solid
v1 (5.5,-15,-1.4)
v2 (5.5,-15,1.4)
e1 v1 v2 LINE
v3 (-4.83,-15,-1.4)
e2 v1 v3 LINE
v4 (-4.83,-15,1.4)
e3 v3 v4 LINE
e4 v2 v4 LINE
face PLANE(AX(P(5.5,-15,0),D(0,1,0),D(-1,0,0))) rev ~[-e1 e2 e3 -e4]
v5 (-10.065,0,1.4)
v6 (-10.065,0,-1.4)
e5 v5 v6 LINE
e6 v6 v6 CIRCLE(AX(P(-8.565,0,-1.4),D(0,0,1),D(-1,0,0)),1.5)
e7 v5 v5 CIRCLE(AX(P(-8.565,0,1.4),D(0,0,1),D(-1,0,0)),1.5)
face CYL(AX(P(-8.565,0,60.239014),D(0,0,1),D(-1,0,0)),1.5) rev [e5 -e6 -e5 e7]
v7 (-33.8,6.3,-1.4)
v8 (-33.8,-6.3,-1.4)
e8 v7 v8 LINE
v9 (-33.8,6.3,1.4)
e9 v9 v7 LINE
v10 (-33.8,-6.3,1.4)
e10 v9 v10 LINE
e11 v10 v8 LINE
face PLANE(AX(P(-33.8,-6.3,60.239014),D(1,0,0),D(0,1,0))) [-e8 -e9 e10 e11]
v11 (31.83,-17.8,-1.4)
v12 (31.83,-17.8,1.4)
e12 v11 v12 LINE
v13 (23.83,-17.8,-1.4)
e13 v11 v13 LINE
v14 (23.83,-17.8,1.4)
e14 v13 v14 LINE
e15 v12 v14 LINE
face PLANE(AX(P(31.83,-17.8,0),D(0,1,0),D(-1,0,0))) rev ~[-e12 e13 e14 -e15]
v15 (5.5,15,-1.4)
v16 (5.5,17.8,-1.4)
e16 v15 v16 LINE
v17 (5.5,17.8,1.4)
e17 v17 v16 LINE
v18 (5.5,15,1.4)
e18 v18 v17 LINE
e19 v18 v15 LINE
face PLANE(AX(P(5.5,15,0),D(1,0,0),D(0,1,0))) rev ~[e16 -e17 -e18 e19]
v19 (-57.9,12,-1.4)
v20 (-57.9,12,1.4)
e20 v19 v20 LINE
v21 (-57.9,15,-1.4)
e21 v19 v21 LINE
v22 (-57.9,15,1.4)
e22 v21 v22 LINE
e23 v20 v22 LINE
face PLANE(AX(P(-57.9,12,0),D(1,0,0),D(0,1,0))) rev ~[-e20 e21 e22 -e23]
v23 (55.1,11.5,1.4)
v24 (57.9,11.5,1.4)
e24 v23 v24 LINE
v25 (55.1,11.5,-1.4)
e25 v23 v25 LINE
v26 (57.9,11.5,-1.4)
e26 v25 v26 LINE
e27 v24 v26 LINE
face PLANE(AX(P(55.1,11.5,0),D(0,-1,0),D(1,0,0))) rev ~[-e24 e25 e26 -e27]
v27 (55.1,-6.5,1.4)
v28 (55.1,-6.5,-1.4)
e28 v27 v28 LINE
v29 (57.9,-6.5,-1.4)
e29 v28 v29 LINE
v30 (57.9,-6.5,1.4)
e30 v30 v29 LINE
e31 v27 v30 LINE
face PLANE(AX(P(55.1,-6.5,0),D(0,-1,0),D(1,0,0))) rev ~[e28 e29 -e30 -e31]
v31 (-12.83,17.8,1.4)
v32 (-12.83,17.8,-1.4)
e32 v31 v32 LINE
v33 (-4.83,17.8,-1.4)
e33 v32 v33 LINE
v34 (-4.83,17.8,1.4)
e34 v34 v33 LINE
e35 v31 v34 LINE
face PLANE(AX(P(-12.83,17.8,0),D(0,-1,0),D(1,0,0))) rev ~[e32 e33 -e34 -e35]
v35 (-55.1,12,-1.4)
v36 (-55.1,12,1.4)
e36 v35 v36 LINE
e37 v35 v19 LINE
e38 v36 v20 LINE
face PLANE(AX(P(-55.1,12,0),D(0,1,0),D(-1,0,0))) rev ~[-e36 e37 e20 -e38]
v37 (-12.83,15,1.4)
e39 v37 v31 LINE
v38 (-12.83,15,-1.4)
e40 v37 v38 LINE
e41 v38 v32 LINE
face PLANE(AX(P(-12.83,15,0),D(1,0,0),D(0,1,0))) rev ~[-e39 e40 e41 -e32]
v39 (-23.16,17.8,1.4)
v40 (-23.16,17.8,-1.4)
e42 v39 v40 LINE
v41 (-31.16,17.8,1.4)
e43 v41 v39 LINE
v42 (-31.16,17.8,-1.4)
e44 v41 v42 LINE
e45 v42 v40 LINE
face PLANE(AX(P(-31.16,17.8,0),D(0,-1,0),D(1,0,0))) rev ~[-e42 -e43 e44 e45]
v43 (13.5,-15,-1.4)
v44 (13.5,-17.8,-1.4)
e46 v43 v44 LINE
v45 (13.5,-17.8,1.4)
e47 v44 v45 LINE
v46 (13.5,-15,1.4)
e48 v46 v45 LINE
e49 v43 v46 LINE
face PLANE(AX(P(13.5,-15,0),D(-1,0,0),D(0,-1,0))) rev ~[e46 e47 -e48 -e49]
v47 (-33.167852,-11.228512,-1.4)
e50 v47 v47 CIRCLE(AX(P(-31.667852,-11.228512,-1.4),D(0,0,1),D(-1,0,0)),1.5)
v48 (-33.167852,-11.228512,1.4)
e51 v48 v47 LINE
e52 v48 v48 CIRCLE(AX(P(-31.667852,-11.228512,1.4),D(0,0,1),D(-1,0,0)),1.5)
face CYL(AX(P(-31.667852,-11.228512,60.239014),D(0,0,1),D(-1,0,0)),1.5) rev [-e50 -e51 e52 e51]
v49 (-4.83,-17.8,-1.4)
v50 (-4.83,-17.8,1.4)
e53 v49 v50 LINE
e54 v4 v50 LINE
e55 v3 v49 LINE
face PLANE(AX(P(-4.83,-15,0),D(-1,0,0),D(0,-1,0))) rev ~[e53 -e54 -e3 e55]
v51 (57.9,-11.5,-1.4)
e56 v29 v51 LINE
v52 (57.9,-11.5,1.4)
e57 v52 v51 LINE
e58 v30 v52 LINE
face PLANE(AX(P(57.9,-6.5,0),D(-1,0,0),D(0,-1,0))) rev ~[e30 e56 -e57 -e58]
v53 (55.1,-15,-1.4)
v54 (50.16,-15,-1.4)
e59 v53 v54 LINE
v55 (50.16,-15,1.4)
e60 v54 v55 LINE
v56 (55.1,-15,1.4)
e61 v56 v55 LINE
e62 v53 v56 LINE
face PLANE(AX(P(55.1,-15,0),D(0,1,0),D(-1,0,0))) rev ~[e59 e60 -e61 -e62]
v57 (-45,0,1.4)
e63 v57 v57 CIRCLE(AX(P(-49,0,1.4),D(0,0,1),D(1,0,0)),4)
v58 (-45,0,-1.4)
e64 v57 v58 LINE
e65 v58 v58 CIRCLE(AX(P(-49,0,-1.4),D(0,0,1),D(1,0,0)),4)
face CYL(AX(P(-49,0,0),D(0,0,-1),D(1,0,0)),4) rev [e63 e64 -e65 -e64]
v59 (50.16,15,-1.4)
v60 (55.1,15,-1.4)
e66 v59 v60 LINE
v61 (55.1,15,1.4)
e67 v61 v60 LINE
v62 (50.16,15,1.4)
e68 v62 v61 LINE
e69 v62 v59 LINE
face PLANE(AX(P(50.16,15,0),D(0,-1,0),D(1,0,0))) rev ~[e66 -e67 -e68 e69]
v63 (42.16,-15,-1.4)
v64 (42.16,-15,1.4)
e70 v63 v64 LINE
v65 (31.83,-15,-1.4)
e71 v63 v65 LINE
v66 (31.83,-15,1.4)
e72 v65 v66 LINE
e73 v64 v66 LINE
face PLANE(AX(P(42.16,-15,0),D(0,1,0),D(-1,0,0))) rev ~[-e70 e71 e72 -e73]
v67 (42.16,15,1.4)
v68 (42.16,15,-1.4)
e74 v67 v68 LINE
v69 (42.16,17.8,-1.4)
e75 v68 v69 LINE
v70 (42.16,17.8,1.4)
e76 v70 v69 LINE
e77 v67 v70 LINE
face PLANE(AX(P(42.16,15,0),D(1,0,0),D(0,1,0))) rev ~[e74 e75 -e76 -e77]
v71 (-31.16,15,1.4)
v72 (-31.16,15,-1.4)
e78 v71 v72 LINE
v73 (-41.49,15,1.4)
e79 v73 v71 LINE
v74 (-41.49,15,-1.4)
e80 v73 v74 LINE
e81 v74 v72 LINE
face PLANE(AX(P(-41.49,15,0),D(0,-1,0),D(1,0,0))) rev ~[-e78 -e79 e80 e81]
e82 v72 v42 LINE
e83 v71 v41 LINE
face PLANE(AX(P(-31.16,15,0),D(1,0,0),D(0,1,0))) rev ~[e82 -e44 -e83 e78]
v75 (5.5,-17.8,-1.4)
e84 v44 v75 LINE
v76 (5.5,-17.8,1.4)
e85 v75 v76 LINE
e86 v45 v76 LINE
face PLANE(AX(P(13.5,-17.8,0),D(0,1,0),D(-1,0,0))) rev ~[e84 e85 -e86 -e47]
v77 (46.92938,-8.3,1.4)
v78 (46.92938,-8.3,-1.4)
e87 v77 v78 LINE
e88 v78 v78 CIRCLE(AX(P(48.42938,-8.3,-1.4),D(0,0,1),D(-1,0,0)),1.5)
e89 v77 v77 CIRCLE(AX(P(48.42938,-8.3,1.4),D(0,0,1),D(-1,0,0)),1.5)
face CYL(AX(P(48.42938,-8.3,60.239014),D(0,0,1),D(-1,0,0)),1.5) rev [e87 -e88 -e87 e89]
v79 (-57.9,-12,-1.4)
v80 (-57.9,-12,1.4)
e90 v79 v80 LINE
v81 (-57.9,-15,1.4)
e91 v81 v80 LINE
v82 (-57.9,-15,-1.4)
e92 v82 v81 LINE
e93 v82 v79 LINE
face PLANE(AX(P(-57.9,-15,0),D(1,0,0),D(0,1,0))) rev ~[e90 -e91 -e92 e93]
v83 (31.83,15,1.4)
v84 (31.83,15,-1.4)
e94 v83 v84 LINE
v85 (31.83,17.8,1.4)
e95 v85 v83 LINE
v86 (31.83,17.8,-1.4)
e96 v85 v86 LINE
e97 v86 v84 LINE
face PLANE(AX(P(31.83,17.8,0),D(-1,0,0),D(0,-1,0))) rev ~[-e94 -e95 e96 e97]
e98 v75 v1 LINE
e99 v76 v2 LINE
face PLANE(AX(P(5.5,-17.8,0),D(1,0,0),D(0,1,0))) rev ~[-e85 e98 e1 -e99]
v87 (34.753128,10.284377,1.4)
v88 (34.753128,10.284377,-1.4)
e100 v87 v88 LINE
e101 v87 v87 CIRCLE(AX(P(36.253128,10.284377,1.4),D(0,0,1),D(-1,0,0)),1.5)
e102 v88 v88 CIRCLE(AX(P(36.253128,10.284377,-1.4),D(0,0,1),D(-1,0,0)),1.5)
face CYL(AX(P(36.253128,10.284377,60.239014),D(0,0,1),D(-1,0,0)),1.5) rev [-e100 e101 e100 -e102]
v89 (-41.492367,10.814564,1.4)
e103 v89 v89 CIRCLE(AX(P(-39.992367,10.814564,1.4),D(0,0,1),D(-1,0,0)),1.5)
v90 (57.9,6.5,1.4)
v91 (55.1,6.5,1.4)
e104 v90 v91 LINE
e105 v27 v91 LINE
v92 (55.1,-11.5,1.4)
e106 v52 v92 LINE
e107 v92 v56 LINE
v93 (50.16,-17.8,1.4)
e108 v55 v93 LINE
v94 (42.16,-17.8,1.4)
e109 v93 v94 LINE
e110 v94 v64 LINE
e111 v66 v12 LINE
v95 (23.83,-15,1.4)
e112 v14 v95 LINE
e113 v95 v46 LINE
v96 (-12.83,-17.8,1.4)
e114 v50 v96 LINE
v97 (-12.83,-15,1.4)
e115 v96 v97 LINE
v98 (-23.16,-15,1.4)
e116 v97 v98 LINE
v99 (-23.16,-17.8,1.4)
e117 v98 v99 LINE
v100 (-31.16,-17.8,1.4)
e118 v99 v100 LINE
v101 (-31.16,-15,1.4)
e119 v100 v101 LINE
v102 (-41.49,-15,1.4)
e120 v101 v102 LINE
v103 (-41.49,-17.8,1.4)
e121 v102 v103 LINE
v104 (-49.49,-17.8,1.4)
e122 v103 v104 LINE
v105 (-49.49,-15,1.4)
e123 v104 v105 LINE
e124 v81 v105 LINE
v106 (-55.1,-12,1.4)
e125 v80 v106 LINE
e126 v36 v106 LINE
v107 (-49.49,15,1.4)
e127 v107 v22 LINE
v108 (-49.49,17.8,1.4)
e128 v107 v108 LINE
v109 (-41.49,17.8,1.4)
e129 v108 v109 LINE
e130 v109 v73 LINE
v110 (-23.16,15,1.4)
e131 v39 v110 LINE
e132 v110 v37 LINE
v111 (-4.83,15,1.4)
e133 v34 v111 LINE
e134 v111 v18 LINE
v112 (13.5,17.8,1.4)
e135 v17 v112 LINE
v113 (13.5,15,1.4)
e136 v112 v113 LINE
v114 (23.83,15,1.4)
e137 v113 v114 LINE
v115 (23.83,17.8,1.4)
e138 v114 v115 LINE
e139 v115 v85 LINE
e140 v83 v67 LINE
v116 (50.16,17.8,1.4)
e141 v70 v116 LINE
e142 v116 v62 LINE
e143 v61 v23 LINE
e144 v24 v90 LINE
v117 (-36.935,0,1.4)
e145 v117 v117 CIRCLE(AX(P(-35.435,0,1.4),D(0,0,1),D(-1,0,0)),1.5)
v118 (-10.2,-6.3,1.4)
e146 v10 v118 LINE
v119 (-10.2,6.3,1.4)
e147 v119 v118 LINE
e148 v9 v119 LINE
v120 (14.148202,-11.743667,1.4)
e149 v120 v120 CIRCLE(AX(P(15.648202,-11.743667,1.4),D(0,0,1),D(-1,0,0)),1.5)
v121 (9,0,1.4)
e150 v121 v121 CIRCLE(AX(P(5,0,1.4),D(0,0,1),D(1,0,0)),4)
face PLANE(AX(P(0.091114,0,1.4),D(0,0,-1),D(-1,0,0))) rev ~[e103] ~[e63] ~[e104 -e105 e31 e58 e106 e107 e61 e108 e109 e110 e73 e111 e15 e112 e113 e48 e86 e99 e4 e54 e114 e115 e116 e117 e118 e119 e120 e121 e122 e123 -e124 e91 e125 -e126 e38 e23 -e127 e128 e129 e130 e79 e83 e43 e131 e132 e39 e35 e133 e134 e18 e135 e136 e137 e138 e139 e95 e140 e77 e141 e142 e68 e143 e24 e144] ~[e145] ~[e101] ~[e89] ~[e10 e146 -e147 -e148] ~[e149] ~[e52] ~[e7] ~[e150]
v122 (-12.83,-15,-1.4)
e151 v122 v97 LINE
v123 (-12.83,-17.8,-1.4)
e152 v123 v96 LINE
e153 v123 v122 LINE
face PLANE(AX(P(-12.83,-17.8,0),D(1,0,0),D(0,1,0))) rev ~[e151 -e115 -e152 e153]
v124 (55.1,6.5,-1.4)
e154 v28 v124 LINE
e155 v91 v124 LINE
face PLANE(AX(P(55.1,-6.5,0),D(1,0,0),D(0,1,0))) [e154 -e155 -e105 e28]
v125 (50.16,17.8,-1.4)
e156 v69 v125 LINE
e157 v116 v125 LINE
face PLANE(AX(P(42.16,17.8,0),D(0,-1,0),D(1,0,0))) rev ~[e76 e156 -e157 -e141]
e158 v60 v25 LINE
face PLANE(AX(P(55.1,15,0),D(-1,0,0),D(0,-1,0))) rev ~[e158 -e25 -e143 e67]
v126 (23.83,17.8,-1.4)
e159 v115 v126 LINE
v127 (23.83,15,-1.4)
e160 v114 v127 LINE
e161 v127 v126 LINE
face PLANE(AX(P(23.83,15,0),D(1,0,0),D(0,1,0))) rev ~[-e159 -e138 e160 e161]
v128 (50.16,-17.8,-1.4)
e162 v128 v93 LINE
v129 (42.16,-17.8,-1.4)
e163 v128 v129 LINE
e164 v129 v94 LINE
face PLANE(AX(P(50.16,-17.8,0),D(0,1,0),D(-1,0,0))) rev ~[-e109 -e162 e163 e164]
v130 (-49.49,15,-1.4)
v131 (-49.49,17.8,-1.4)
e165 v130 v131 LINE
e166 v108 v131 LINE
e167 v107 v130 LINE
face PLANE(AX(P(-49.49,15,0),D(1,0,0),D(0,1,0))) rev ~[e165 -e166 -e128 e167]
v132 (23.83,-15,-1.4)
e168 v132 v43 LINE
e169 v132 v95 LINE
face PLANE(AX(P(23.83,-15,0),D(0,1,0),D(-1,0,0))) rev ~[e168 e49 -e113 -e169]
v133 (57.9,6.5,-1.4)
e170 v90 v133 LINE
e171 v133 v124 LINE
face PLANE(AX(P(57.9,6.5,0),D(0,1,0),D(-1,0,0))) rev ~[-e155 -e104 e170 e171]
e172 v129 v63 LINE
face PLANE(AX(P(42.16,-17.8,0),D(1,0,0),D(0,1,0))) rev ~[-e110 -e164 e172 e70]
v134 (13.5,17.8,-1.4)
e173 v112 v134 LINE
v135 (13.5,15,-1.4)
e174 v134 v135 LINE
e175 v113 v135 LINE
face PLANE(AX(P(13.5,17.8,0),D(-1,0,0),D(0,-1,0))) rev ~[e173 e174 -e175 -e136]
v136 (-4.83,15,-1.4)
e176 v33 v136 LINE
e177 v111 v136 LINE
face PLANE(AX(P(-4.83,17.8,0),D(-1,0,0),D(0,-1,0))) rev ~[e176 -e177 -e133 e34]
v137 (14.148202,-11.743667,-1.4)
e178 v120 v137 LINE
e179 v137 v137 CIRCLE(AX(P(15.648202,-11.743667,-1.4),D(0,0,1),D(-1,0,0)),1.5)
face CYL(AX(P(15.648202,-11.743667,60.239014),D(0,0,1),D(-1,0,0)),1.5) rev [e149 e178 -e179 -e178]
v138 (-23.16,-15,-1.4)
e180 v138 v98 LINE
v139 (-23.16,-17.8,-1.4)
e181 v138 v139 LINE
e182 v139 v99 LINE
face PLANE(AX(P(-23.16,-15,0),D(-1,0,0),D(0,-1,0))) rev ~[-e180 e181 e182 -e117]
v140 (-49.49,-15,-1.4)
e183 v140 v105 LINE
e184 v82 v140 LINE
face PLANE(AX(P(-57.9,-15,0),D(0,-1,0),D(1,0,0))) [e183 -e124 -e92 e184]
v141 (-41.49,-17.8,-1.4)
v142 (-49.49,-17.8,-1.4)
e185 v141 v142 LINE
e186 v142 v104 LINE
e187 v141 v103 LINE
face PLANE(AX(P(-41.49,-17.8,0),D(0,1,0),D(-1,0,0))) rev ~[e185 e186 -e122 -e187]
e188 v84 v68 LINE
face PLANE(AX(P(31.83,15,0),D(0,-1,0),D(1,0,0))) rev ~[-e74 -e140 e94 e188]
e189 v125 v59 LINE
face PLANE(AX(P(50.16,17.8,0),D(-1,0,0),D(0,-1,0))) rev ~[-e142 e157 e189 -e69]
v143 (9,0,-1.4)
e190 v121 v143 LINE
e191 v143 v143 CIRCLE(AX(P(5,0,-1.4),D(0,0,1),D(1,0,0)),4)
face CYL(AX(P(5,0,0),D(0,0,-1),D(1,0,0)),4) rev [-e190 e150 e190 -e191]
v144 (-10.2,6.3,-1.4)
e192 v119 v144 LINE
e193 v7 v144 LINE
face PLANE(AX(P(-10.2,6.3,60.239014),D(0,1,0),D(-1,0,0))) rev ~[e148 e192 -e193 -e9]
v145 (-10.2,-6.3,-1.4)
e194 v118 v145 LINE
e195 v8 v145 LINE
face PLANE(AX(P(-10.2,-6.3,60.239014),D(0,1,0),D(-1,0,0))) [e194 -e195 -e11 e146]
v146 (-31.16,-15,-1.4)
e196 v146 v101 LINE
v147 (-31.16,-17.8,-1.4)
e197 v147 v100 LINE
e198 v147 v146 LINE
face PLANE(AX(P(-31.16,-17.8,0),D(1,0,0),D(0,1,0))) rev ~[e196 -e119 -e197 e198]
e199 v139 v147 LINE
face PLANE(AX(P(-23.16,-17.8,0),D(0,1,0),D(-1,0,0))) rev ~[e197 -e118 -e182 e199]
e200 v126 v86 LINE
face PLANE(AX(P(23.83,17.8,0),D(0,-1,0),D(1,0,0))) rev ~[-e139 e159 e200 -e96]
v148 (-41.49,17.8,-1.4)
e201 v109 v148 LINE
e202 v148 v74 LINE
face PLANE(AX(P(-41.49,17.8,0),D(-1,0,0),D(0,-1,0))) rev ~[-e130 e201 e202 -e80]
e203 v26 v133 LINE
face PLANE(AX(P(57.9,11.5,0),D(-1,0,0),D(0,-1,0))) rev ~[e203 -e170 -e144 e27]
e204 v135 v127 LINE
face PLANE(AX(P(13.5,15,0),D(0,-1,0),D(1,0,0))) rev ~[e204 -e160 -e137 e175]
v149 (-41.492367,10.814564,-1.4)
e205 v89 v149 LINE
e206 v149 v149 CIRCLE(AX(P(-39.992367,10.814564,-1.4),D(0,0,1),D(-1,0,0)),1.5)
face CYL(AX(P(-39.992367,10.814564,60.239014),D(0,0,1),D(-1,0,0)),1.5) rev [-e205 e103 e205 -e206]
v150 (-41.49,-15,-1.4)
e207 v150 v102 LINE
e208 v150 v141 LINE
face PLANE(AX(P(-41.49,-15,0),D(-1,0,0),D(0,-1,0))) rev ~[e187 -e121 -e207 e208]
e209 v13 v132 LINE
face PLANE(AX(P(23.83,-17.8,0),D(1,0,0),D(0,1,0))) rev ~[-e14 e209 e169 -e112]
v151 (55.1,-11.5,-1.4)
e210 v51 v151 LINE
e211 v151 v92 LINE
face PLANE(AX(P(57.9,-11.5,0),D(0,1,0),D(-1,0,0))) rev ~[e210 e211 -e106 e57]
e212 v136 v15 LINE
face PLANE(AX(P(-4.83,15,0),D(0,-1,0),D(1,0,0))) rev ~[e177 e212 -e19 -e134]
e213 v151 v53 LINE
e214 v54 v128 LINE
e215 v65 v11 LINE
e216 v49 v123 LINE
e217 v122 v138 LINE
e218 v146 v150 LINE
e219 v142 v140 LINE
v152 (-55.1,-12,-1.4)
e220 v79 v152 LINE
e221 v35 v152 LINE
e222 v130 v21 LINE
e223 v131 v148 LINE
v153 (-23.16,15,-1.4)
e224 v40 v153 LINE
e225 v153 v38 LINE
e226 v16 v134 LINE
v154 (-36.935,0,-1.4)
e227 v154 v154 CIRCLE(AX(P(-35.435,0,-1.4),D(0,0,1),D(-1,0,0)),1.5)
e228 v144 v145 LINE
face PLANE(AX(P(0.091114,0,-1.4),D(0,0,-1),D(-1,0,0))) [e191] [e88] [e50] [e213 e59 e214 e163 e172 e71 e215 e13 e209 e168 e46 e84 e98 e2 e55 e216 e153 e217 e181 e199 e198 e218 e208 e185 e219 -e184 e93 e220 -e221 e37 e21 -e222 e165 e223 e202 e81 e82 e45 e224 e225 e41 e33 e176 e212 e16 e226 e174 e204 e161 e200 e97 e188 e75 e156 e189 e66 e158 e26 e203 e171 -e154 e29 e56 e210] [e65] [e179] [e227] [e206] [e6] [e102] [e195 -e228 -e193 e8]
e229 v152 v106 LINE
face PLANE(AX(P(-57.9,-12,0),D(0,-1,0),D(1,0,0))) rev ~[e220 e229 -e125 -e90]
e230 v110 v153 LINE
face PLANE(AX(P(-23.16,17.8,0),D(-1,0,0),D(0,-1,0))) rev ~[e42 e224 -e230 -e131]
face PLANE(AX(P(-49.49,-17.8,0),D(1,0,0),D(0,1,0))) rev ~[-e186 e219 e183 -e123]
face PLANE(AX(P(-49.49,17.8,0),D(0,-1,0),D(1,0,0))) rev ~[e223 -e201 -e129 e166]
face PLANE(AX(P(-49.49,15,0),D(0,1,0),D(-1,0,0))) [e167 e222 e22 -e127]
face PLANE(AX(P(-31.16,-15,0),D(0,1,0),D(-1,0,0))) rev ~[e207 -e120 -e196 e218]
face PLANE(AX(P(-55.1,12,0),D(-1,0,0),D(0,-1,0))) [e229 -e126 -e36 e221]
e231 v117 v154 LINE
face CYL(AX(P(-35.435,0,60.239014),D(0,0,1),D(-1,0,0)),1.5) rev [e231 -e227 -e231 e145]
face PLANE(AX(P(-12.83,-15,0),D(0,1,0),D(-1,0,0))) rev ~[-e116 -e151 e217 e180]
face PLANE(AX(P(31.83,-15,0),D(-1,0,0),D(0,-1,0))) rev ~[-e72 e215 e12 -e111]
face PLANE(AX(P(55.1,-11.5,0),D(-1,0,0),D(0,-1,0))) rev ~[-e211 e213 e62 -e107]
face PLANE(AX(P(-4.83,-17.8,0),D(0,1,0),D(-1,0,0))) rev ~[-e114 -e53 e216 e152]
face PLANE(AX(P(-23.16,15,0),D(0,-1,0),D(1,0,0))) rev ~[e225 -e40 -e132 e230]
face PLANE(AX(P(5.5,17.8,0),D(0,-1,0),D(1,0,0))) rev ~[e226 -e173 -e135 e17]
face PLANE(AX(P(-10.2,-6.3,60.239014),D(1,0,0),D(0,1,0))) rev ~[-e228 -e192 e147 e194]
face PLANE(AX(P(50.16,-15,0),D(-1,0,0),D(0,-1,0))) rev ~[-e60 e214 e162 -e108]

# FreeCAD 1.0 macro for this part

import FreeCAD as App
import Part
import Sketcher
from FreeCAD import Vector
Q = App.Units.Quantity

doc = App.newDocument("Part")
params = doc.addObject("Spreadsheet::Sheet", "Params")
for row, (alias, value) in enumerate([
    ("sketch1_diameter", "8 mm"),
    ("sketch1_width", "8 mm"),
    ("sketch1_height", "3 mm"),
    ("sketch1_height2", "24 mm"),
    ("sketch1_height3", "5 mm"),
    ("pad1_length", "2.8 mm"),
    ("sketch2_diameter", "3 mm"),
    ("sketch2_width", "23.6 mm"),
    ("sketch2_height", "12.6 mm"),
    ("sketch3_diameter", "3 mm"),
], start=1):
    params.set(f"A{row}", alias)
    params.set(f"B{row}", "=" + value)
    params.setAlias(f"B{row}", alias)

body = doc.addObject("PartDesign::Body", "Body")

sketch1 = doc.addObject("Sketcher::SketchObject", "Sketch")
body.addObject(sketch1)
sketch1.AttachmentSupport = (doc.XY_Plane, [""])
sketch1.MapMode = "FlatFace"
sketch1.addGeometry(Part.LineSegment(Vector(-49.49, 15, 0), Vector(-57.9, 15, 0)), False)
sketch1.addGeometry(Part.LineSegment(Vector(-57.9, 15, 0), Vector(-57.9, 12, 0)), False)
sketch1.addGeometry(Part.LineSegment(Vector(-57.9, 12, 0), Vector(-55.1, 12, 0)), False)
sketch1.addGeometry(Part.LineSegment(Vector(-55.1, 12, 0), Vector(-55.1, -12, 0)), False)
sketch1.addGeometry(Part.LineSegment(Vector(-55.1, -12, 0), Vector(-57.9, -12, 0)), False)
sketch1.addGeometry(Part.LineSegment(Vector(-57.9, -12, 0), Vector(-57.9, -15, 0)), False)
sketch1.addGeometry(Part.LineSegment(Vector(-57.9, -15, 0), Vector(-49.49, -15, 0)), False)
sketch1.addGeometry(Part.LineSegment(Vector(-49.49, -15, 0), Vector(-49.49, -17.8, 0)), False)
sketch1.addGeometry(Part.LineSegment(Vector(-49.49, -17.8, 0), Vector(-41.49, -17.8, 0)), False)
sketch1.addGeometry(Part.LineSegment(Vector(-41.49, -17.8, 0), Vector(-41.49, -15, 0)), False)
sketch1.addGeometry(Part.LineSegment(Vector(-41.49, -15, 0), Vector(-31.16, -15, 0)), False)
sketch1.addGeometry(Part.LineSegment(Vector(-31.16, -15, 0), Vector(-31.16, -17.8, 0)), False)
sketch1.addGeometry(Part.LineSegment(Vector(-31.16, -17.8, 0), Vector(-23.16, -17.8, 0)), False)
sketch1.addGeometry(Part.LineSegment(Vector(-23.16, -17.8, 0), Vector(-23.16, -15, 0)), False)
sketch1.addGeometry(Part.LineSegment(Vector(-23.16, -15, 0), Vector(-12.83, -15, 0)), False)
sketch1.addGeometry(Part.LineSegment(Vector(-12.83, -15, 0), Vector(-12.83, -17.8, 0)), False)
sketch1.addGeometry(Part.LineSegment(Vector(-12.83, -17.8, 0), Vector(-4.83, -17.8, 0)), False)
sketch1.addGeometry(Part.LineSegment(Vector(-4.83, -17.8, 0), Vector(-4.83, -15, 0)), False)
sketch1.addGeometry(Part.LineSegment(Vector(-4.83, -15, 0), Vector(5.5, -15, 0)), False)
sketch1.addGeometry(Part.LineSegment(Vector(5.5, -15, 0), Vector(5.5, -17.8, 0)), False)
sketch1.addGeometry(Part.LineSegment(Vector(5.5, -17.8, 0), Vector(13.5, -17.8, 0)), False)
sketch1.addGeometry(Part.LineSegment(Vector(13.5, -17.8, 0), Vector(13.5, -15, 0)), False)
sketch1.addGeometry(Part.LineSegment(Vector(13.5, -15, 0), Vector(23.83, -15, 0)), False)
sketch1.addGeometry(Part.LineSegment(Vector(23.83, -15, 0), Vector(23.83, -17.8, 0)), False)
sketch1.addGeometry(Part.LineSegment(Vector(23.83, -17.8, 0), Vector(31.83, -17.8, 0)), False)
sketch1.addGeometry(Part.LineSegment(Vector(31.83, -17.8, 0), Vector(31.83, -15, 0)), False)
sketch1.addGeometry(Part.LineSegment(Vector(31.83, -15, 0), Vector(42.16, -15, 0)), False)
sketch1.addGeometry(Part.LineSegment(Vector(42.16, -15, 0), Vector(42.16, -17.8, 0)), False)
sketch1.addGeometry(Part.LineSegment(Vector(42.16, -17.8, 0), Vector(50.16, -17.8, 0)), False)
sketch1.addGeometry(Part.LineSegment(Vector(50.16, -17.8, 0), Vector(50.16, -15, 0)), False)
sketch1.addGeometry(Part.LineSegment(Vector(50.16, -15, 0), Vector(55.1, -15, 0)), False)
sketch1.addGeometry(Part.LineSegment(Vector(55.1, -15, 0), Vector(55.1, -11.5, 0)), False)
sketch1.addGeometry(Part.LineSegment(Vector(55.1, -11.5, 0), Vector(57.9, -11.5, 0)), False)
sketch1.addGeometry(Part.LineSegment(Vector(57.9, -11.5, 0), Vector(57.9, -6.5, 0)), False)
sketch1.addGeometry(Part.LineSegment(Vector(57.9, -6.5, 0), Vector(55.1, -6.5, 0)), False)
sketch1.addGeometry(Part.LineSegment(Vector(55.1, -6.5, 0), Vector(55.1, 6.5, 0)), False)
sketch1.addGeometry(Part.LineSegment(Vector(55.1, 6.5, 0), Vector(57.9, 6.5, 0)), False)
sketch1.addGeometry(Part.LineSegment(Vector(57.9, 6.5, 0), Vector(57.9, 11.5, 0)), False)
sketch1.addGeometry(Part.LineSegment(Vector(57.9, 11.5, 0), Vector(55.1, 11.5, 0)), False)
sketch1.addGeometry(Part.LineSegment(Vector(55.1, 11.5, 0), Vector(55.1, 15, 0)), False)
sketch1.addGeometry(Part.LineSegment(Vector(55.1, 15, 0), Vector(50.16, 15, 0)), False)
sketch1.addGeometry(Part.LineSegment(Vector(50.16, 15, 0), Vector(50.16, 17.8, 0)), False)
sketch1.addGeometry(Part.LineSegment(Vector(50.16, 17.8, 0), Vector(42.16, 17.8, 0)), False)
sketch1.addGeometry(Part.LineSegment(Vector(42.16, 17.8, 0), Vector(42.16, 15, 0)), False)
sketch1.addGeometry(Part.LineSegment(Vector(42.16, 15, 0), Vector(31.83, 15, 0)), False)
sketch1.addGeometry(Part.LineSegment(Vector(31.83, 15, 0), Vector(31.83, 17.8, 0)), False)
sketch1.addGeometry(Part.LineSegment(Vector(31.83, 17.8, 0), Vector(23.83, 17.8, 0)), False)
sketch1.addGeometry(Part.LineSegment(Vector(23.83, 17.8, 0), Vector(23.83, 15, 0)), False)
sketch1.addGeometry(Part.LineSegment(Vector(23.83, 15, 0), Vector(13.5, 15, 0)), False)
sketch1.addGeometry(Part.LineSegment(Vector(13.5, 15, 0), Vector(13.5, 17.8, 0)), False)
sketch1.addGeometry(Part.LineSegment(Vector(13.5, 17.8, 0), Vector(5.5, 17.8, 0)), False)
sketch1.addGeometry(Part.LineSegment(Vector(5.5, 17.8, 0), Vector(5.5, 15, 0)), False)
sketch1.addGeometry(Part.LineSegment(Vector(5.5, 15, 0), Vector(-4.83, 15, 0)), False)
sketch1.addGeometry(Part.LineSegment(Vector(-4.83, 15, 0), Vector(-4.83, 17.8, 0)), False)
sketch1.addGeometry(Part.LineSegment(Vector(-4.83, 17.8, 0), Vector(-12.83, 17.8, 0)), False)
sketch1.addGeometry(Part.LineSegment(Vector(-12.83, 17.8, 0), Vector(-12.83, 15, 0)), False)
sketch1.addGeometry(Part.LineSegment(Vector(-12.83, 15, 0), Vector(-23.16, 15, 0)), False)
sketch1.addGeometry(Part.LineSegment(Vector(-23.16, 15, 0), Vector(-23.16, 17.8, 0)), False)
sketch1.addGeometry(Part.LineSegment(Vector(-23.16, 17.8, 0), Vector(-31.16, 17.8, 0)), False)
sketch1.addGeometry(Part.LineSegment(Vector(-31.16, 17.8, 0), Vector(-31.16, 15, 0)), False)
sketch1.addGeometry(Part.LineSegment(Vector(-31.16, 15, 0), Vector(-41.49, 15, 0)), False)
sketch1.addGeometry(Part.LineSegment(Vector(-41.49, 15, 0), Vector(-41.49, 17.8, 0)), False)
sketch1.addGeometry(Part.LineSegment(Vector(-41.49, 17.8, 0), Vector(-49.49, 17.8, 0)), False)
sketch1.addGeometry(Part.LineSegment(Vector(-49.49, 17.8, 0), Vector(-49.49, 15, 0)), False)
sketch1.addGeometry(Part.Circle(Vector(5, 0, 0), Vector(0, 0, 1), 4), False)
sketch1.addGeometry(Part.Circle(Vector(-49, 0, 0), Vector(0, 0, 1), 4), False)
sketch1.addConstraint(Sketcher.Constraint("Coincident", 0, 2, 1, 1))
sketch1.addConstraint(Sketcher.Constraint("Coincident", 1, 2, 2, 1))
sketch1.addConstraint(Sketcher.Constraint("Coincident", 2, 2, 3, 1))
sketch1.addConstraint(Sketcher.Constraint("Coincident", 3, 2, 4, 1))
sketch1.addConstraint(Sketcher.Constraint("Coincident", 4, 2, 5, 1))
sketch1.addConstraint(Sketcher.Constraint("Coincident", 5, 2, 6, 1))
sketch1.addConstraint(Sketcher.Constraint("Coincident", 6, 2, 7, 1))
sketch1.addConstraint(Sketcher.Constraint("Coincident", 7, 2, 8, 1))
sketch1.addConstraint(Sketcher.Constraint("Coincident", 8, 2, 9, 1))
sketch1.addConstraint(Sketcher.Constraint("Coincident", 9, 2, 10, 1))
sketch1.addConstraint(Sketcher.Constraint("Coincident", 10, 2, 11, 1))
sketch1.addConstraint(Sketcher.Constraint("Coincident", 11, 2, 12, 1))
sketch1.addConstraint(Sketcher.Constraint("Coincident", 12, 2, 13, 1))
sketch1.addConstraint(Sketcher.Constraint("Coincident", 13, 2, 14, 1))
sketch1.addConstraint(Sketcher.Constraint("Coincident", 14, 2, 15, 1))
sketch1.addConstraint(Sketcher.Constraint("Coincident", 15, 2, 16, 1))
sketch1.addConstraint(Sketcher.Constraint("Coincident", 16, 2, 17, 1))
sketch1.addConstraint(Sketcher.Constraint("Coincident", 17, 2, 18, 1))
sketch1.addConstraint(Sketcher.Constraint("Coincident", 18, 2, 19, 1))
sketch1.addConstraint(Sketcher.Constraint("Coincident", 19, 2, 20, 1))
sketch1.addConstraint(Sketcher.Constraint("Coincident", 20, 2, 21, 1))
sketch1.addConstraint(Sketcher.Constraint("Coincident", 21, 2, 22, 1))
sketch1.addConstraint(Sketcher.Constraint("Coincident", 22, 2, 23, 1))
sketch1.addConstraint(Sketcher.Constraint("Coincident", 23, 2, 24, 1))
sketch1.addConstraint(Sketcher.Constraint("Coincident", 24, 2, 25, 1))
sketch1.addConstraint(Sketcher.Constraint("Coincident", 25, 2, 26, 1))
sketch1.addConstraint(Sketcher.Constraint("Coincident", 26, 2, 27, 1))
sketch1.addConstraint(Sketcher.Constraint("Coincident", 27, 2, 28, 1))
sketch1.addConstraint(Sketcher.Constraint("Coincident", 28, 2, 29, 1))
sketch1.addConstraint(Sketcher.Constraint("Coincident", 29, 2, 30, 1))
sketch1.addConstraint(Sketcher.Constraint("Coincident", 30, 2, 31, 1))
sketch1.addConstraint(Sketcher.Constraint("Coincident", 31, 2, 32, 1))
sketch1.addConstraint(Sketcher.Constraint("Coincident", 32, 2, 33, 1))
sketch1.addConstraint(Sketcher.Constraint("Coincident", 33, 2, 34, 1))
sketch1.addConstraint(Sketcher.Constraint("Coincident", 34, 2, 35, 1))
sketch1.addConstraint(Sketcher.Constraint("Coincident", 35, 2, 36, 1))
sketch1.addConstraint(Sketcher.Constraint("Coincident", 36, 2, 37, 1))
sketch1.addConstraint(Sketcher.Constraint("Coincident", 37, 2, 38, 1))
sketch1.addConstraint(Sketcher.Constraint("Coincident", 38, 2, 39, 1))
sketch1.addConstraint(Sketcher.Constraint("Coincident", 39, 2, 40, 1))
sketch1.addConstraint(Sketcher.Constraint("Coincident", 40, 2, 41, 1))
sketch1.addConstraint(Sketcher.Constraint("Coincident", 41, 2, 42, 1))
sketch1.addConstraint(Sketcher.Constraint("Coincident", 42, 2, 43, 1))
sketch1.addConstraint(Sketcher.Constraint("Coincident", 43, 2, 44, 1))
sketch1.addConstraint(Sketcher.Constraint("Coincident", 44, 2, 45, 1))
sketch1.addConstraint(Sketcher.Constraint("Coincident", 45, 2, 46, 1))
sketch1.addConstraint(Sketcher.Constraint("Coincident", 46, 2, 47, 1))
sketch1.addConstraint(Sketcher.Constraint("Coincident", 47, 2, 48, 1))
sketch1.addConstraint(Sketcher.Constraint("Coincident", 48, 2, 49, 1))
sketch1.addConstraint(Sketcher.Constraint("Coincident", 49, 2, 50, 1))
sketch1.addConstraint(Sketcher.Constraint("Coincident", 50, 2, 51, 1))
sketch1.addConstraint(Sketcher.Constraint("Coincident", 51, 2, 52, 1))
sketch1.addConstraint(Sketcher.Constraint("Coincident", 52, 2, 53, 1))
sketch1.addConstraint(Sketcher.Constraint("Coincident", 53, 2, 54, 1))
sketch1.addConstraint(Sketcher.Constraint("Coincident", 54, 2, 55, 1))
sketch1.addConstraint(Sketcher.Constraint("Coincident", 55, 2, 56, 1))
sketch1.addConstraint(Sketcher.Constraint("Coincident", 56, 2, 57, 1))
sketch1.addConstraint(Sketcher.Constraint("Coincident", 57, 2, 58, 1))
sketch1.addConstraint(Sketcher.Constraint("Coincident", 58, 2, 59, 1))
sketch1.addConstraint(Sketcher.Constraint("Coincident", 59, 2, 60, 1))
sketch1.addConstraint(Sketcher.Constraint("Coincident", 60, 2, 61, 1))
sketch1.addConstraint(Sketcher.Constraint("Coincident", 61, 2, 62, 1))
sketch1.addConstraint(Sketcher.Constraint("Coincident", 62, 2, 63, 1))
sketch1.addConstraint(Sketcher.Constraint("Coincident", 63, 2, 0, 1))
sketch1.addConstraint(Sketcher.Constraint("Horizontal", 0))
sketch1.addConstraint(Sketcher.Constraint("Vertical", 1))
sketch1.addConstraint(Sketcher.Constraint("Horizontal", 2))
sketch1.addConstraint(Sketcher.Constraint("Vertical", 3))
sketch1.addConstraint(Sketcher.Constraint("Horizontal", 4))
sketch1.addConstraint(Sketcher.Constraint("Vertical", 5))
sketch1.addConstraint(Sketcher.Constraint("Horizontal", 6))
sketch1.addConstraint(Sketcher.Constraint("Vertical", 7))
sketch1.addConstraint(Sketcher.Constraint("Horizontal", 8))
sketch1.addConstraint(Sketcher.Constraint("Vertical", 9))
sketch1.addConstraint(Sketcher.Constraint("Horizontal", 10))
sketch1.addConstraint(Sketcher.Constraint("Vertical", 11))
sketch1.addConstraint(Sketcher.Constraint("Horizontal", 12))
sketch1.addConstraint(Sketcher.Constraint("Vertical", 13))
sketch1.addConstraint(Sketcher.Constraint("Horizontal", 14))
sketch1.addConstraint(Sketcher.Constraint("Vertical", 15))
sketch1.addConstraint(Sketcher.Constraint("Horizontal", 16))
sketch1.addConstraint(Sketcher.Constraint("Vertical", 17))
sketch1.addConstraint(Sketcher.Constraint("Horizontal", 18))
sketch1.addConstraint(Sketcher.Constraint("Vertical", 19))
sketch1.addConstraint(Sketcher.Constraint("Horizontal", 20))
sketch1.addConstraint(Sketcher.Constraint("Vertical", 21))
sketch1.addConstraint(Sketcher.Constraint("Horizontal", 22))
sketch1.addConstraint(Sketcher.Constraint("Vertical", 23))
sketch1.addConstraint(Sketcher.Constraint("Horizontal", 24))
sketch1.addConstraint(Sketcher.Constraint("Vertical", 25))
sketch1.addConstraint(Sketcher.Constraint("Horizontal", 26))
sketch1.addConstraint(Sketcher.Constraint("Vertical", 27))
sketch1.addConstraint(Sketcher.Constraint("Horizontal", 28))
sketch1.addConstraint(Sketcher.Constraint("Vertical", 29))
sketch1.addConstraint(Sketcher.Constraint("Horizontal", 30))
sketch1.addConstraint(Sketcher.Constraint("Vertical", 31))
sketch1.addConstraint(Sketcher.Constraint("Horizontal", 32))
sketch1.addConstraint(Sketcher.Constraint("Vertical", 33))
sketch1.addConstraint(Sketcher.Constraint("Horizontal", 34))
sketch1.addConstraint(Sketcher.Constraint("Vertical", 35))
sketch1.addConstraint(Sketcher.Constraint("Horizontal", 36))
sketch1.addConstraint(Sketcher.Constraint("Vertical", 37))
sketch1.addConstraint(Sketcher.Constraint("Horizontal", 38))
sketch1.addConstraint(Sketcher.Constraint("Vertical", 39))
sketch1.addConstraint(Sketcher.Constraint("Horizontal", 40))
sketch1.addConstraint(Sketcher.Constraint("Vertical", 41))
sketch1.addConstraint(Sketcher.Constraint("Horizontal", 42))
sketch1.addConstraint(Sketcher.Constraint("Vertical", 43))
sketch1.addConstraint(Sketcher.Constraint("Horizontal", 44))
sketch1.addConstraint(Sketcher.Constraint("Vertical", 45))
sketch1.addConstraint(Sketcher.Constraint("Horizontal", 46))
sketch1.addConstraint(Sketcher.Constraint("Vertical", 47))
sketch1.addConstraint(Sketcher.Constraint("Horizontal", 48))
sketch1.addConstraint(Sketcher.Constraint("Vertical", 49))
sketch1.addConstraint(Sketcher.Constraint("Horizontal", 50))
sketch1.addConstraint(Sketcher.Constraint("Vertical", 51))
sketch1.addConstraint(Sketcher.Constraint("Horizontal", 52))
sketch1.addConstraint(Sketcher.Constraint("Vertical", 53))
sketch1.addConstraint(Sketcher.Constraint("Horizontal", 54))
sketch1.addConstraint(Sketcher.Constraint("Vertical", 55))
sketch1.addConstraint(Sketcher.Constraint("Horizontal", 56))
sketch1.addConstraint(Sketcher.Constraint("Vertical", 57))
sketch1.addConstraint(Sketcher.Constraint("Horizontal", 58))
sketch1.addConstraint(Sketcher.Constraint("Vertical", 59))
sketch1.addConstraint(Sketcher.Constraint("Horizontal", 60))
sketch1.addConstraint(Sketcher.Constraint("Vertical", 61))
sketch1.addConstraint(Sketcher.Constraint("Horizontal", 62))
sketch1.addConstraint(Sketcher.Constraint("Vertical", 63))
sketch1.addConstraint(Sketcher.Constraint("Equal", 64, 65))
sketch1.addConstraint(Sketcher.Constraint("Symmetric", 1, 2, 4, 2, -1))
sketch1.addConstraint(Sketcher.Constraint("Symmetric", 33, 2, 36, 2, -1))
sketch1.addConstraint(Sketcher.Constraint("Symmetric", 31, 2, 38, 2, -1))
sketch1.addConstraint(Sketcher.Constraint("Symmetric", 29, 2, 40, 2, -1))
sketch1.addConstraint(Sketcher.Constraint("Symmetric", 27, 2, 42, 2, -1))
sketch1.addConstraint(Sketcher.Constraint("Symmetric", 25, 2, 44, 2, -1))
sketch1.addConstraint(Sketcher.Constraint("Symmetric", 23, 2, 46, 2, -1))
sketch1.addConstraint(Sketcher.Constraint("Symmetric", 21, 2, 48, 2, -1))
sketch1.addConstraint(Sketcher.Constraint("Symmetric", 19, 2, 50, 2, -1))
sketch1.addConstraint(Sketcher.Constraint("Symmetric", 17, 2, 52, 2, -1))
sketch1.addConstraint(Sketcher.Constraint("Symmetric", 15, 2, 54, 2, -1))
sketch1.addConstraint(Sketcher.Constraint("Symmetric", 13, 2, 56, 2, -1))
sketch1.addConstraint(Sketcher.Constraint("Symmetric", 11, 2, 58, 2, -1))
sketch1.addConstraint(Sketcher.Constraint("Symmetric", 9, 2, 60, 2, -1))
sketch1.addConstraint(Sketcher.Constraint("Symmetric", 7, 2, 62, 2, -1))
sketch1.addConstraint(Sketcher.Constraint("PointOnObject", 64, 3, -1))
sketch1.addConstraint(Sketcher.Constraint("PointOnObject", 65, 3, -1))
sketch1.addConstraint(Sketcher.Constraint("Horizontal", 6, 2, 9, 2))
sketch1.addConstraint(Sketcher.Constraint("Horizontal", 8, 2, 11, 2))
sketch1.addConstraint(Sketcher.Constraint("Horizontal", 10, 2, 13, 2))
sketch1.addConstraint(Sketcher.Constraint("Horizontal", 12, 2, 15, 2))
sketch1.addConstraint(Sketcher.Constraint("Horizontal", 14, 2, 17, 2))
sketch1.addConstraint(Sketcher.Constraint("Horizontal", 16, 2, 19, 2))
sketch1.addConstraint(Sketcher.Constraint("Horizontal", 18, 2, 21, 2))
sketch1.addConstraint(Sketcher.Constraint("Horizontal", 20, 2, 23, 2))
sketch1.addConstraint(Sketcher.Constraint("Horizontal", 22, 2, 25, 2))
sketch1.addConstraint(Sketcher.Constraint("Horizontal", 24, 2, 27, 2))
sketch1.addConstraint(Sketcher.Constraint("Horizontal", 26, 2, 29, 2))
sketch1.addConstraint(Sketcher.Constraint("Horizontal", 0, 2, 39, 2))
sketch1.addConstraint(Sketcher.Constraint("Vertical", 31, 2, 34, 2))
sketch1.addConstraint(Sketcher.Constraint("Equal", 8, 12))
sketch1.addConstraint(Sketcher.Constraint("Equal", 10, 14))
sketch1.addConstraint(Sketcher.Constraint("Equal", 12, 16))
sketch1.addConstraint(Sketcher.Constraint("Equal", 14, 18))
sketch1.addConstraint(Sketcher.Constraint("Equal", 16, 20))
sketch1.addConstraint(Sketcher.Constraint("Equal", 18, 22))
sketch1.addConstraint(Sketcher.Constraint("Equal", 20, 24))
sketch1.addConstraint(Sketcher.Constraint("Equal", 22, 26))
sketch1.addConstraint(Sketcher.Constraint("Equal", 24, 28))
sketch1.addConstraint(Sketcher.Constraint("Equal", 4, 32))
sketch1.addConstraint(Sketcher.Constraint("Equal", 38, 7))
sketch1.addConstraint(Sketcher.Constraint("Diameter", 64, Q("8 mm")))
sketch1.addConstraint(Sketcher.Constraint("DistanceX", 8, 1, 8, 2, Q("8 mm")))
sketch1.addConstraint(Sketcher.Constraint("DistanceY", 1, 2, 1, 1, Q("3 mm")))
sketch1.addConstraint(Sketcher.Constraint("DistanceY", 3, 2, 3, 1, Q("24 mm")))
sketch1.addConstraint(Sketcher.Constraint("DistanceY", 33, 1, 33, 2, Q("5 mm")))
sketch1.addConstraint(Sketcher.Constraint("DistanceY", 35, 1, 35, 2, Q("13 mm")))
sketch1.addConstraint(Sketcher.Constraint("DistanceX", 2, 1, 2, 2, Q("2.8 mm")))
sketch1.addConstraint(Sketcher.Constraint("DistanceX", -1, 1, 64, 3, Q("5 mm")))
sketch1.addConstraint(Sketcher.Constraint("DistanceX", 65, 3, -1, 1, Q("49 mm")))
sketch1.addConstraint(Sketcher.Constraint("DistanceX", 0, 2, 0, 1, Q("8.41 mm")))
sketch1.addConstraint(Sketcher.Constraint("DistanceX", 10, 1, 10, 2, Q("10.33 mm")))
sketch1.addConstraint(Sketcher.Constraint("DistanceX", 30, 1, 30, 2, Q("4.94 mm")))
sketch1.addConstraint(Sketcher.Constraint("DistanceX", 0, 2, -1, 1, Q("57.9 mm")))
sketch1.setExpression("Constraints[170]", "Params.sketch1_diameter")
sketch1.setExpression("Constraints[171]", "Params.sketch1_width")
sketch1.setExpression("Constraints[172]", "Params.sketch1_height")
sketch1.setExpression("Constraints[173]", "Params.sketch1_height2")
sketch1.setExpression("Constraints[174]", "Params.sketch1_height3")
pad1 = doc.addObject("PartDesign::Pad", "Pad")
body.addObject(pad1)
pad1.Profile = sketch1
pad1.setExpression("Length", "Params.pad1_length")
pad1.Midplane = True

sketch2 = doc.addObject("Sketcher::SketchObject", "Sketch001")
body.addObject(sketch2)
sketch2.AttachmentSupport = (doc.XY_Plane, [""])
sketch2.MapMode = "FlatFace"
sketch2.AttachmentOffset = App.Placement(Vector(0, 0, -1.4), App.Rotation())
sketch2.addGeometry(Part.LineSegment(Vector(-10.2, 6.3, 0), Vector(-10.2, -6.3, 0)), False)
sketch2.addGeometry(Part.LineSegment(Vector(-10.2, -6.3, 0), Vector(-33.8, -6.3, 0)), False)
sketch2.addGeometry(Part.LineSegment(Vector(-33.8, -6.3, 0), Vector(-33.8, 6.3, 0)), False)
sketch2.addGeometry(Part.LineSegment(Vector(-33.8, 6.3, 0), Vector(-10.2, 6.3, 0)), False)
sketch2.addGeometry(Part.Circle(Vector(-8.565, 0, 0), Vector(0, 0, 1), 1.5), False)
sketch2.addGeometry(Part.Circle(Vector(-35.435, 0, 0), Vector(0, 0, 1), 1.5), False)
sketch2.addConstraint(Sketcher.Constraint("Coincident", 0, 2, 1, 1))
sketch2.addConstraint(Sketcher.Constraint("Coincident", 1, 2, 2, 1))
sketch2.addConstraint(Sketcher.Constraint("Coincident", 2, 2, 3, 1))
sketch2.addConstraint(Sketcher.Constraint("Coincident", 3, 2, 0, 1))
sketch2.addConstraint(Sketcher.Constraint("Vertical", 0))
sketch2.addConstraint(Sketcher.Constraint("Horizontal", 1))
sketch2.addConstraint(Sketcher.Constraint("Vertical", 2))
sketch2.addConstraint(Sketcher.Constraint("Horizontal", 3))
sketch2.addConstraint(Sketcher.Constraint("Equal", 4, 5))
sketch2.addConstraint(Sketcher.Constraint("PointOnObject", 4, 3, -1))
sketch2.addConstraint(Sketcher.Constraint("PointOnObject", 5, 3, -1))
sketch2.addConstraint(Sketcher.Constraint("Diameter", 4, Q("3 mm")))
sketch2.addConstraint(Sketcher.Constraint("DistanceX", 1, 2, 1, 1, Q("23.6 mm")))
sketch2.addConstraint(Sketcher.Constraint("DistanceY", 0, 2, 0, 1, Q("12.6 mm")))
sketch2.addConstraint(Sketcher.Constraint("DistanceX", 0, 2, -1, 1, Q("10.2 mm")))
sketch2.addConstraint(Sketcher.Constraint("DistanceY", 0, 2, -1, 1, Q("6.3 mm")))
sketch2.addConstraint(Sketcher.Constraint("DistanceX", 5, 3, 4, 3, Q("26.87 mm")))
sketch2.addConstraint(Sketcher.Constraint("DistanceX", 4, 3, -1, 1, Q("8.565 mm")))
sketch2.setExpression("Constraints[11]", "Params.sketch2_diameter")
sketch2.setExpression("Constraints[12]", "Params.sketch2_width")
sketch2.setExpression("Constraints[13]", "Params.sketch2_height")
pocket1 = doc.addObject("PartDesign::Pocket", "Pocket")
body.addObject(pocket1)
pocket1.Profile = sketch2
pocket1.Type = "ThroughAll"
pocket1.Midplane = True

sketch3 = doc.addObject("Sketcher::SketchObject", "Sketch002")
body.addObject(sketch3)
sketch3.AttachmentSupport = (doc.XY_Plane, [""])
sketch3.MapMode = "FlatFace"
sketch3.AttachmentOffset = App.Placement(Vector(0, 0, -1.4), App.Rotation())
sketch3.addGeometry(Part.Circle(Vector(-31.667852, -11.228512, 0), Vector(0, 0, 1), 1.5), False)
sketch3.addGeometry(Part.Circle(Vector(48.42938, -8.3, 0), Vector(0, 0, 1), 1.5), False)
sketch3.addGeometry(Part.Circle(Vector(15.648202, -11.743667, 0), Vector(0, 0, 1), 1.5), False)
sketch3.addGeometry(Part.Circle(Vector(-39.992367, 10.814564, 0), Vector(0, 0, 1), 1.5), False)
sketch3.addGeometry(Part.Circle(Vector(36.253128, 10.284377, 0), Vector(0, 0, 1), 1.5), False)
sketch3.addConstraint(Sketcher.Constraint("Equal", 0, 1))
sketch3.addConstraint(Sketcher.Constraint("Equal", 1, 2))
sketch3.addConstraint(Sketcher.Constraint("Equal", 2, 3))
sketch3.addConstraint(Sketcher.Constraint("Equal", 3, 4))
sketch3.addConstraint(Sketcher.Constraint("Diameter", 0, Q("3 mm")))
sketch3.addConstraint(Sketcher.Constraint("DistanceY", 1, 3, -1, 1, Q("8.3 mm")))
sketch3.addConstraint(Sketcher.Constraint("DistanceX", 0, 3, -1, 1, Q("31.667852 mm")))
sketch3.addConstraint(Sketcher.Constraint("DistanceX", -1, 1, 1, 3, Q("48.42938 mm")))
sketch3.addConstraint(Sketcher.Constraint("DistanceX", 3, 3, 2, 3, Q("55.64057 mm")))
sketch3.addConstraint(Sketcher.Constraint("DistanceY", 2, 3, 3, 3, Q("22.558231 mm")))
sketch3.addConstraint(Sketcher.Constraint("DistanceX", 4, 3, 1, 3, Q("12.176252 mm")))
sketch3.addConstraint(Sketcher.Constraint("DistanceY", 0, 3, 4, 3, Q("21.512889 mm")))
sketch3.addConstraint(Sketcher.Constraint("DistanceY", 0, 3, -1, 1, Q("11.228512 mm")))
sketch3.addConstraint(Sketcher.Constraint("DistanceX", -1, 1, 2, 3, Q("15.648202 mm")))
sketch3.addConstraint(Sketcher.Constraint("DistanceY", 2, 3, -1, 1, Q("11.743667 mm")))
sketch3.setExpression("Constraints[4]", "Params.sketch3_diameter")
pocket2 = doc.addObject("PartDesign::Pocket", "Pocket001")
body.addObject(pocket2)
pocket2.Profile = sketch3
pocket2.Type = "ThroughAll"
pocket2.Midplane = True

doc.recompute()
